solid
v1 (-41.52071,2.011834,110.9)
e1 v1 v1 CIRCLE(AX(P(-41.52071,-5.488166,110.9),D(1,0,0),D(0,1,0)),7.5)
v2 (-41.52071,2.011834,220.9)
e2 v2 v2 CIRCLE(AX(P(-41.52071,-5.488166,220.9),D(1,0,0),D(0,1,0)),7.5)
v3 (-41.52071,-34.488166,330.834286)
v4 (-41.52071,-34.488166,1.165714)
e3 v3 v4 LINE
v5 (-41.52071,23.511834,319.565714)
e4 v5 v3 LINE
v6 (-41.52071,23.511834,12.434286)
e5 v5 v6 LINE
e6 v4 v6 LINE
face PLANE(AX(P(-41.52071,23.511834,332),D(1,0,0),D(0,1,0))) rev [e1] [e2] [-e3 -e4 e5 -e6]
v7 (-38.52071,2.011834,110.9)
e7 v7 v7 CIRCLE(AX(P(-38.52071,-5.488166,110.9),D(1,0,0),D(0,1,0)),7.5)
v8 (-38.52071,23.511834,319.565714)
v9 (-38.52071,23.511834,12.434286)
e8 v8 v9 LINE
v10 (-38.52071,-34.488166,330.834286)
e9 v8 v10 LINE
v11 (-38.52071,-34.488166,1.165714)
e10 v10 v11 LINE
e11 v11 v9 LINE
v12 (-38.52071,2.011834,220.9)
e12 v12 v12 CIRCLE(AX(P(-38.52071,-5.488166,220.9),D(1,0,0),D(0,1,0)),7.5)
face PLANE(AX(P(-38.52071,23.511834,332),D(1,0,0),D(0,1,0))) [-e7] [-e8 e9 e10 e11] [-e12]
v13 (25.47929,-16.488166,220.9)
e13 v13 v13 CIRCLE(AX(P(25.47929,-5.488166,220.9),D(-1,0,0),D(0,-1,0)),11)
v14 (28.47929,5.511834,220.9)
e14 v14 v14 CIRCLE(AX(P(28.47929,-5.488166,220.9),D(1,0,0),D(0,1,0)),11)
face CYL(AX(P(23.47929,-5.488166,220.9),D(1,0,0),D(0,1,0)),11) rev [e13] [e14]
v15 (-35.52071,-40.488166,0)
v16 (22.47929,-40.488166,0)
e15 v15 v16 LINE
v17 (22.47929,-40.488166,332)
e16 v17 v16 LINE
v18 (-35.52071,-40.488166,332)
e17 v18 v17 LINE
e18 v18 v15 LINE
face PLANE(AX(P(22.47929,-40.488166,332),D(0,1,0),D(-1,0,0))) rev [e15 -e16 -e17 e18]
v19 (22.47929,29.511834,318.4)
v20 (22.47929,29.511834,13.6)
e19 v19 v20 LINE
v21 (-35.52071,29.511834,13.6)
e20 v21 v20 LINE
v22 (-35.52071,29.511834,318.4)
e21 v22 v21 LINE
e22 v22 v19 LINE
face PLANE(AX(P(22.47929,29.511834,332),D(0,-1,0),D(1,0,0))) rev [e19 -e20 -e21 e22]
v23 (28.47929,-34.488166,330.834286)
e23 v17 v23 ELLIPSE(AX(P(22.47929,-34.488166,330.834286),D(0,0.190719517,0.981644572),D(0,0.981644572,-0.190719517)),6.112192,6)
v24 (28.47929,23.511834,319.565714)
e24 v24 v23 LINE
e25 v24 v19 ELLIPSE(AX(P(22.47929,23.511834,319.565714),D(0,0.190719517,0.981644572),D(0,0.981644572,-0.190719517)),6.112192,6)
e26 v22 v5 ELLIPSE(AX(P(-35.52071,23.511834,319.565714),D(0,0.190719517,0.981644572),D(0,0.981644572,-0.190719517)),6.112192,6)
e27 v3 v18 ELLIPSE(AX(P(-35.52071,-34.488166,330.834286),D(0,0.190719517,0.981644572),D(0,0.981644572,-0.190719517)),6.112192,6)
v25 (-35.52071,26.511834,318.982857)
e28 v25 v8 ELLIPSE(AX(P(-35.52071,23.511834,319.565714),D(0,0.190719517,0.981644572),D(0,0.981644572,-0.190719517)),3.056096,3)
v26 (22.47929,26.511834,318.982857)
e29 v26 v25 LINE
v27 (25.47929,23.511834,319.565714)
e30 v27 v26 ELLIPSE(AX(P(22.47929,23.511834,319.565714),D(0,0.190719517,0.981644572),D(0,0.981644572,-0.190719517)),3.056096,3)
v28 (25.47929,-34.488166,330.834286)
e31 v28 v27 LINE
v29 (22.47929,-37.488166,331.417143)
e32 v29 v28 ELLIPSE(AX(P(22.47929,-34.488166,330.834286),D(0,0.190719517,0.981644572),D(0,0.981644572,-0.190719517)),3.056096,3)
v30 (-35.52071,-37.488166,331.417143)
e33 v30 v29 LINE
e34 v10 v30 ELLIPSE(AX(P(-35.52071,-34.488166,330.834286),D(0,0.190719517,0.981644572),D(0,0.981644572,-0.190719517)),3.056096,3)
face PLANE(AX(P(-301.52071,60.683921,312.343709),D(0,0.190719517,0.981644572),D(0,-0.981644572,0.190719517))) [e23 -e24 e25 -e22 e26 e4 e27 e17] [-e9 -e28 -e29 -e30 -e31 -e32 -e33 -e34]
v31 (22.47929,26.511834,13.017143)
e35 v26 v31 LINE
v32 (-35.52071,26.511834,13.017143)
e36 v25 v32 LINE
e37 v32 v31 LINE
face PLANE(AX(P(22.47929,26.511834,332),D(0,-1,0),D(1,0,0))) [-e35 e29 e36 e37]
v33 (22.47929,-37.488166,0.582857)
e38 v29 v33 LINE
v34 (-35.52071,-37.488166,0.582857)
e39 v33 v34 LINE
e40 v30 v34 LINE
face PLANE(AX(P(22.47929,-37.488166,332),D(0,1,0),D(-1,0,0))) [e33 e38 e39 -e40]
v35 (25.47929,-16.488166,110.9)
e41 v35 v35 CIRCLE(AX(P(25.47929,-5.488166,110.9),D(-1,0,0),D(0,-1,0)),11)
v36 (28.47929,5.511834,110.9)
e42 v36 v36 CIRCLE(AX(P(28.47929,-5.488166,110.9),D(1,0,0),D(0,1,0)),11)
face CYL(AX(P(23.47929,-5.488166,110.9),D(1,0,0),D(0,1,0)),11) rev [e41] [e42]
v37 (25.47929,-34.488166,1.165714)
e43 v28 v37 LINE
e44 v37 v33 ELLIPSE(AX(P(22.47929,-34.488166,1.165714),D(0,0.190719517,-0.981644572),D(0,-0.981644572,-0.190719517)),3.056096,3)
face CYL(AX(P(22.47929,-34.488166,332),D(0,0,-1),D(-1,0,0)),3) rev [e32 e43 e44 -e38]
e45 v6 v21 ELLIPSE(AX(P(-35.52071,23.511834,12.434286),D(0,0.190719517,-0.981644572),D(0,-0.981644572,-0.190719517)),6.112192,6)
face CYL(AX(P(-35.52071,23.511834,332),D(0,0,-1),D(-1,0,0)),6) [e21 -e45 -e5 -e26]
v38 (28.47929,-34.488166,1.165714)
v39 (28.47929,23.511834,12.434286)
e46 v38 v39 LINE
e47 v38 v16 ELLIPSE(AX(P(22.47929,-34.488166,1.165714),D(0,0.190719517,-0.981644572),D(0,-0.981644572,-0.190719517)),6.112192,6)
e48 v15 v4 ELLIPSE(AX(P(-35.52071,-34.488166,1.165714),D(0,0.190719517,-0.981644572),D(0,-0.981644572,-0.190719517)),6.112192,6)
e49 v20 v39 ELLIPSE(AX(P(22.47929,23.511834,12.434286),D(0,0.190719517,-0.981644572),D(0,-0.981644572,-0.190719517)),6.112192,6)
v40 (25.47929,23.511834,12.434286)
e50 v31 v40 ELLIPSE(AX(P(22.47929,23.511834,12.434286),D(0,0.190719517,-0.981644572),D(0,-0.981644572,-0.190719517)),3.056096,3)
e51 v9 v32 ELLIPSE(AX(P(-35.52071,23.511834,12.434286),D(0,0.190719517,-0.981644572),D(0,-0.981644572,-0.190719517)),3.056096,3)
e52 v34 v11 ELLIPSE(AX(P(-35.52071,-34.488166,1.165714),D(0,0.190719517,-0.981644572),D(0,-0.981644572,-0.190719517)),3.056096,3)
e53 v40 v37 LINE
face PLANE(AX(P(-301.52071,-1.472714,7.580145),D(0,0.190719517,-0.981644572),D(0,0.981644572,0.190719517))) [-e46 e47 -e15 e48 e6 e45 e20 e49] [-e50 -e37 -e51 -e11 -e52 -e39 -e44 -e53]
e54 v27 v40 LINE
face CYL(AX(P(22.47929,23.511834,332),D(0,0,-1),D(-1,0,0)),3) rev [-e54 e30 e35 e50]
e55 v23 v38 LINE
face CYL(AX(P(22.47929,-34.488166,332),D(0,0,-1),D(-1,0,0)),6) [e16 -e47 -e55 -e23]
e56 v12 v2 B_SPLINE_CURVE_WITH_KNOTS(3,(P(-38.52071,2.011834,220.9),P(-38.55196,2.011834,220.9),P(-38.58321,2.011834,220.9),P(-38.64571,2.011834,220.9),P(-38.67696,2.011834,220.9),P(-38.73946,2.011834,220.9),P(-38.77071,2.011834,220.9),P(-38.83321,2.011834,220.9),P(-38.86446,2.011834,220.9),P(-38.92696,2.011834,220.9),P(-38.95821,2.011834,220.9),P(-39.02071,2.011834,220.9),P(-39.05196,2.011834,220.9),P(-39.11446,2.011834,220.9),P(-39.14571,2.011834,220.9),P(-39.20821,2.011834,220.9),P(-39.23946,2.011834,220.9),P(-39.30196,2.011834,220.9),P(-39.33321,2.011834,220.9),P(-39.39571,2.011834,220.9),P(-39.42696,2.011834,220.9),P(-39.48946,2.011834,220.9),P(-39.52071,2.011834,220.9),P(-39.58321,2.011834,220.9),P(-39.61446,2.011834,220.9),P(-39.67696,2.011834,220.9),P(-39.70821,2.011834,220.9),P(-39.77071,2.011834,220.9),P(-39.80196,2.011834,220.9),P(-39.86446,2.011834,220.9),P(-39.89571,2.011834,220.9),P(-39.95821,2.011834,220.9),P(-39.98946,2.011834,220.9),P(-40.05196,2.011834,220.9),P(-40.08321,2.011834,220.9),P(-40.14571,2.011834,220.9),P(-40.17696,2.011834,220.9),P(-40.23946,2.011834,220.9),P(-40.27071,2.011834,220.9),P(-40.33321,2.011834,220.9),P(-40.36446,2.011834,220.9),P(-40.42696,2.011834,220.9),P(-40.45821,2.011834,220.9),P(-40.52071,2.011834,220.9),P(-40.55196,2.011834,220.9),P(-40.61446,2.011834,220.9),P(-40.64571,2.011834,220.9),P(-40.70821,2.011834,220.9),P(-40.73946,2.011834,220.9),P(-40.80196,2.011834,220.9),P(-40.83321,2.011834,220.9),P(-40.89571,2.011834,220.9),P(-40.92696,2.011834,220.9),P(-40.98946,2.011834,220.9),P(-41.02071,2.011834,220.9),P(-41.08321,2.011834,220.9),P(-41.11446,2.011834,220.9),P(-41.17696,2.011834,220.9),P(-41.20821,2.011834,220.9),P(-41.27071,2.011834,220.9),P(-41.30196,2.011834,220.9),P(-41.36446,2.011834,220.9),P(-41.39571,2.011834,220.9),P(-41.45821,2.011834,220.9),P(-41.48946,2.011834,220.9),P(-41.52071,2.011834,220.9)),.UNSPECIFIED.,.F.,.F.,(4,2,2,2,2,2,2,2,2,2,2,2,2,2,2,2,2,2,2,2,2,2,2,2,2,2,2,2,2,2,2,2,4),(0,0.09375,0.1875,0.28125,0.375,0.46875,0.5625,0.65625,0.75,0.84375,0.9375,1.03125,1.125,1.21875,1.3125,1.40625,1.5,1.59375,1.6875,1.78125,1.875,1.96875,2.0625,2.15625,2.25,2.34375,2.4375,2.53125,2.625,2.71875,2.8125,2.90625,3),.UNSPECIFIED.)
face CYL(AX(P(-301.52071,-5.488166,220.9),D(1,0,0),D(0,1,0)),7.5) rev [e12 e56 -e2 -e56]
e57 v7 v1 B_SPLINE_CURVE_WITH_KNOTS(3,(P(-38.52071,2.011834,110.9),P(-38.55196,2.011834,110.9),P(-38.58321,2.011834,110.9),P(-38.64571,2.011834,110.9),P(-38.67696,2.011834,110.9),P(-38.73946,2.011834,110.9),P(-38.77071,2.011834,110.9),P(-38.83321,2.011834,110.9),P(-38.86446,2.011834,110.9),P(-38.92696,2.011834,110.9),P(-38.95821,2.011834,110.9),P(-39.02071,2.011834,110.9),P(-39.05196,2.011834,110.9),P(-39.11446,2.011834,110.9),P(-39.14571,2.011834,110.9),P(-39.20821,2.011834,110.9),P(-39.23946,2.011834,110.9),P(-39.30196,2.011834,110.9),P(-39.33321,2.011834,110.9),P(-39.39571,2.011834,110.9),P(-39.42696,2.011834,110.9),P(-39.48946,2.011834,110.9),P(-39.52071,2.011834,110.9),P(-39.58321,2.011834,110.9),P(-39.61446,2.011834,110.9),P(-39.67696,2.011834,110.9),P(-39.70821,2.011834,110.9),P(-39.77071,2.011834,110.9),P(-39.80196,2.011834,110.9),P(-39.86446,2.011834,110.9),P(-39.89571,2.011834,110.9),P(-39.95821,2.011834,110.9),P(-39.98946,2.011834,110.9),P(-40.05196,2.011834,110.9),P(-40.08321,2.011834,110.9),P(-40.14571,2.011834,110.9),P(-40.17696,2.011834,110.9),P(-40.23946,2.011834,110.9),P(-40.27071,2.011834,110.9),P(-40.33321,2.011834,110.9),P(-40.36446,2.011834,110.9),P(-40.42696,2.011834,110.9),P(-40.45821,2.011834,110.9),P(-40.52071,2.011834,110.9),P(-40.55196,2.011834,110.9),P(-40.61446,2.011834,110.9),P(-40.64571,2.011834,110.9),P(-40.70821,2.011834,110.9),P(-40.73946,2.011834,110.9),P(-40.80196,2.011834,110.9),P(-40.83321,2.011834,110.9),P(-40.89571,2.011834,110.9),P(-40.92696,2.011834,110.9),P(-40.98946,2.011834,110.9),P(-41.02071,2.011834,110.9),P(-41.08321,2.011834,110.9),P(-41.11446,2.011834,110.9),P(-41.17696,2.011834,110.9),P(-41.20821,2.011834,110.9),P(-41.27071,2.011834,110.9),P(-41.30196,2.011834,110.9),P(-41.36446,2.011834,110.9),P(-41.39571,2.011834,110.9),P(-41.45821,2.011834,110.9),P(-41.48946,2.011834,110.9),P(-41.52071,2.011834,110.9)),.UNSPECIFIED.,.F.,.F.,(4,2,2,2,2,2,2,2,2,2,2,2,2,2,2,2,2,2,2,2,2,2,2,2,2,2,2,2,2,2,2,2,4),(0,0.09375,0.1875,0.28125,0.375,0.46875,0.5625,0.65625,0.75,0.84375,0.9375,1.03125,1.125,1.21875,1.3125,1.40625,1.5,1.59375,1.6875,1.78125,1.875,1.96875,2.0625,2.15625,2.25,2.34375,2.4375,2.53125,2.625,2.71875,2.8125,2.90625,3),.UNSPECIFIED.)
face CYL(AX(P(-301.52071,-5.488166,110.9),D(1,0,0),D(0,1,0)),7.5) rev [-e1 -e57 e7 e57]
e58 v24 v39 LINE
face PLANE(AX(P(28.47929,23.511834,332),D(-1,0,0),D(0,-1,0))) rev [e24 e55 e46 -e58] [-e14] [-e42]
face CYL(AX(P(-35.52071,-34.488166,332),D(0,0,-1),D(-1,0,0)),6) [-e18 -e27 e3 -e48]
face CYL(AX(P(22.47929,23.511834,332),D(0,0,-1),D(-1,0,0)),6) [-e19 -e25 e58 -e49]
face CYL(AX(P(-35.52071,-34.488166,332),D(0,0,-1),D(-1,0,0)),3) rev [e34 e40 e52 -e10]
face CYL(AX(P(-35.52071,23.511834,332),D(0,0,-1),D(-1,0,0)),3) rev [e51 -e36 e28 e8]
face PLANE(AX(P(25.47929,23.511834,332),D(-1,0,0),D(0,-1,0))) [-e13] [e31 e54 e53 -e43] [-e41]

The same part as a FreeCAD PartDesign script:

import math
import FreeCAD as App
import Part
import Sketcher

V = App.Vector
Q = App.Units.Quantity

doc = App.newDocument("Part")
body = doc.addObject("PartDesign::Body", "Body")

# Sketch on XY plane
sketch1 = body.newObject("Sketcher::SketchObject", "Sketch")
sketch1.AttachmentSupport = (doc.getObject("XY_Plane"), [""])
sketch1.MapMode = "FlatFace"
sketch1.addGeometry(Part.LineSegment(V(22.47929, 29.511834, 0), V(-35.52071, 29.511834, 0)), False)
sketch1.addGeometry(Part.ArcOfCircle(Part.Circle(V(-35.52071, 23.511834, 0), V(0, 0, 1), 6), math.radians(90), math.radians(180)), False)
sketch1.addGeometry(Part.LineSegment(V(-41.52071, 23.511834, 0), V(-41.52071, -34.488166, 0)), False)
sketch1.addGeometry(Part.ArcOfCircle(Part.Circle(V(-35.52071, -34.488166, 0), V(0, 0, 1), 6), math.radians(180), math.radians(270)), False)
sketch1.addGeometry(Part.LineSegment(V(-35.52071, -40.488166, 0), V(22.47929, -40.488166, 0)), False)
sketch1.addGeometry(Part.ArcOfCircle(Part.Circle(V(22.47929, -34.488166, 0), V(0, 0, 1), 6), math.radians(-90), math.radians(0)), False)
sketch1.addGeometry(Part.LineSegment(V(28.47929, -34.488166, 0), V(28.47929, 23.511834, 0)), False)
sketch1.addGeometry(Part.ArcOfCircle(Part.Circle(V(22.47929, 23.511834, 0), V(0, 0, 1), 6), math.radians(0), math.radians(90)), False)
sketch1.addGeometry(Part.LineSegment(V(-35.52071, 26.511834, 0), V(22.47929, 26.511834, 0)), False)
sketch1.addGeometry(Part.ArcOfCircle(Part.Circle(V(22.47929, 23.511834, 0), V(0, 0, 1), 3), math.radians(0), math.radians(90)), False)
sketch1.addGeometry(Part.LineSegment(V(25.47929, 23.511834, 0), V(25.47929, -34.488166, 0)), False)
sketch1.addGeometry(Part.ArcOfCircle(Part.Circle(V(22.47929, -34.488166, 0), V(0, 0, 1), 3), math.radians(-90), math.radians(0)), False)
sketch1.addGeometry(Part.LineSegment(V(22.47929, -37.488166, 0), V(-35.52071, -37.488166, 0)), False)
sketch1.addGeometry(Part.ArcOfCircle(Part.Circle(V(-35.52071, -34.488166, 0), V(0, 0, 1), 3), math.radians(180), math.radians(270)), False)
sketch1.addGeometry(Part.LineSegment(V(-38.52071, -34.488166, 0), V(-38.52071, 23.511834, 0)), False)
sketch1.addGeometry(Part.ArcOfCircle(Part.Circle(V(-35.52071, 23.511834, 0), V(0, 0, 1), 3), math.radians(90), math.radians(180)), False)
sketch1.addConstraint(Sketcher.Constraint("Tangent", 0, 2, 1, 1))
sketch1.addConstraint(Sketcher.Constraint("Tangent", 1, 2, 2, 1))
sketch1.addConstraint(Sketcher.Constraint("Tangent", 2, 2, 3, 1))
sketch1.addConstraint(Sketcher.Constraint("Tangent", 3, 2, 4, 1))
sketch1.addConstraint(Sketcher.Constraint("Tangent", 4, 2, 5, 1))
sketch1.addConstraint(Sketcher.Constraint("Tangent", 5, 2, 6, 1))
sketch1.addConstraint(Sketcher.Constraint("Tangent", 6, 2, 7, 1))
sketch1.addConstraint(Sketcher.Constraint("Tangent", 7, 2, 0, 1))
sketch1.addConstraint(Sketcher.Constraint("Tangent", 8, 2, 9, 2))
sketch1.addConstraint(Sketcher.Constraint("Tangent", 9, 1, 10, 1))
sketch1.addConstraint(Sketcher.Constraint("Tangent", 10, 2, 11, 2))
sketch1.addConstraint(Sketcher.Constraint("Tangent", 11, 1, 12, 1))
sketch1.addConstraint(Sketcher.Constraint("Tangent", 12, 2, 13, 2))
sketch1.addConstraint(Sketcher.Constraint("Tangent", 13, 1, 14, 1))
sketch1.addConstraint(Sketcher.Constraint("Tangent", 14, 2, 15, 2))
sketch1.addConstraint(Sketcher.Constraint("Tangent", 15, 1, 8, 1))
sketch1.addConstraint(Sketcher.Constraint("Horizontal", 0))
sketch1.addConstraint(Sketcher.Constraint("Vertical", 2))
sketch1.addConstraint(Sketcher.Constraint("Horizontal", 4))
sketch1.addConstraint(Sketcher.Constraint("Vertical", 6))
sketch1.addConstraint(Sketcher.Constraint("Horizontal", 8))
sketch1.addConstraint(Sketcher.Constraint("Vertical", 10))
sketch1.addConstraint(Sketcher.Constraint("Horizontal", 12))
sketch1.addConstraint(Sketcher.Constraint("Vertical", 14))
sketch1.addConstraint(Sketcher.Constraint("Coincident", 9, 3, 7, 3))
sketch1.addConstraint(Sketcher.Constraint("Coincident", 11, 3, 5, 3))
sketch1.addConstraint(Sketcher.Constraint("Coincident", 13, 3, 3, 3))
sketch1.addConstraint(Sketcher.Constraint("Equal", 1, 3))
sketch1.addConstraint(Sketcher.Constraint("Equal", 3, 5))
sketch1.addConstraint(Sketcher.Constraint("Equal", 5, 7))
sketch1.addConstraint(Sketcher.Constraint("Equal", 13, 15))
sketch1.addConstraint(Sketcher.Constraint("Equal", 12, 2))
sketch1.addConstraint(Sketcher.Constraint("Radius", 1, Q("6 mm")))
sketch1.addConstraint(Sketcher.Constraint("Radius", 9, Q("3 mm")))
sketch1.addConstraint(Sketcher.Constraint("DistanceX", 0, 2, 0, 1, Q("58 mm")))
sketch1.addConstraint(Sketcher.Constraint("DistanceX", 1, 3, -1, 1, Q("35.52071 mm")))
sketch1.addConstraint(Sketcher.Constraint("DistanceY", -1, 1, 1, 3, Q("23.511834 mm")))
pad1 = body.newObject("PartDesign::Pad", "Pad")
pad1.Profile = sketch1
pad1.Length = 332

# Sketch on YZ plane
sketch2 = body.newObject("Sketcher::SketchObject", "Sketch001")
sketch2.AttachmentSupport = (doc.getObject("YZ_Plane"), [""])
sketch2.MapMode = "FlatFace"
sketch2.AttachmentOffset = App.Placement(V(0, 0, 28.47929), App.Rotation())
sketch2.addGeometry(Part.Circle(V(-5.488166, 220.9, 0), V(0, 0, 1), 7.5), False)
sketch2.addGeometry(Part.Circle(V(-5.488166, 110.9, 0), V(0, 0, 1), 7.5), False)
sketch2.addGeometry(Part.LineSegment(V(29.511834, 13.6, 0), V(-40.488166, 0, 0)), False)
sketch2.addGeometry(Part.LineSegment(V(-40.488166, 0, 0), V(29.511834, 0, 0)), False)
sketch2.addGeometry(Part.LineSegment(V(29.511834, 0, 0), V(29.511834, 13.6, 0)), False)
sketch2.addGeometry(Part.LineSegment(V(29.511834, 332, 0), V(-40.488166, 332, 0)), False)
sketch2.addGeometry(Part.LineSegment(V(-40.488166, 332, 0), V(29.511834, 318.4, 0)), False)
sketch2.addGeometry(Part.LineSegment(V(29.511834, 318.4, 0), V(29.511834, 332, 0)), False)
sketch2.addConstraint(Sketcher.Constraint("Coincident", 2, 2, 3, 1))
sketch2.addConstraint(Sketcher.Constraint("Coincident", 3, 2, 4, 1))
sketch2.addConstraint(Sketcher.Constraint("Coincident", 4, 2, 2, 1))
sketch2.addConstraint(Sketcher.Constraint("Coincident", 5, 2, 6, 1))
sketch2.addConstraint(Sketcher.Constraint("Coincident", 6, 2, 7, 1))
sketch2.addConstraint(Sketcher.Constraint("Coincident", 7, 2, 5, 1))
sketch2.addConstraint(Sketcher.Constraint("Horizontal", 3))
sketch2.addConstraint(Sketcher.Constraint("Vertical", 4))
sketch2.addConstraint(Sketcher.Constraint("Horizontal", 5))
sketch2.addConstraint(Sketcher.Constraint("Vertical", 7))
sketch2.addConstraint(Sketcher.Constraint("Equal", 0, 1))
sketch2.addConstraint(Sketcher.Constraint("PointOnObject", 2, 2, -1))
sketch2.addConstraint(Sketcher.Constraint("Vertical", 0, 3, 1, 3))
sketch2.addConstraint(Sketcher.Constraint("Vertical", 2, 2, 5, 2))
sketch2.addConstraint(Sketcher.Constraint("Vertical", 4, 2, 6, 2))
sketch2.addConstraint(Sketcher.Constraint("Equal", 4, 7))
sketch2.addConstraint(Sketcher.Constraint("Diameter", 0, Q("15 mm")))
sketch2.addConstraint(Sketcher.Constraint("DistanceX", 3, 1, 3, 2, Q("70 mm")))
sketch2.addConstraint(Sketcher.Constraint("DistanceY", 4, 1, 4, 2, Q("13.6 mm")))
sketch2.addConstraint(Sketcher.Constraint("DistanceY", -1, 1, 5, 2, Q("332 mm")))
sketch2.addConstraint(Sketcher.Constraint("DistanceY", 1, 3, 0, 3, Q("110 mm")))
sketch2.addConstraint(Sketcher.Constraint("DistanceX", 2, 2, 1, 3, Q("35 mm")))
sketch2.addConstraint(Sketcher.Constraint("DistanceY", -1, 1, 0, 3, Q("220.9 mm")))
sketch2.addConstraint(Sketcher.Constraint("DistanceX", 0, 3, -1, 1, Q("5.488166 mm")))
pocket1 = body.newObject("PartDesign::Pocket", "Pocket")
pocket1.Profile = sketch2
pocket1.Length = 330

# Sketch on YZ plane
sketch3 = body.newObject("Sketcher::SketchObject", "Sketch002")
sketch3.AttachmentSupport = (doc.getObject("YZ_Plane"), [""])
sketch3.MapMode = "FlatFace"
sketch3.AttachmentOffset = App.Placement(V(0, 0, 28.47929), App.Rotation())
sketch3.addGeometry(Part.Circle(V(-5.488166, 220.9, 0), V(0, 0, 1), 11), False)
sketch3.addGeometry(Part.Circle(V(-5.488166, 110.9, 0), V(0, 0, 1), 11), False)
sketch3.addConstraint(Sketcher.Constraint("Equal", 0, 1))
sketch3.addConstraint(Sketcher.Constraint("Vertical", 0, 3, 1, 3))
sketch3.addConstraint(Sketcher.Constraint("Diameter", 0, Q("22 mm")))
sketch3.addConstraint(Sketcher.Constraint("DistanceY", 1, 3, 0, 3, Q("110 mm")))
sketch3.addConstraint(Sketcher.Constraint("DistanceY", -1, 1, 0, 3, Q("220.9 mm")))
sketch3.addConstraint(Sketcher.Constraint("DistanceX", 0, 3, -1, 1, Q("5.488166 mm")))
pocket2 = body.newObject("PartDesign::Pocket", "Pocket001")
pocket2.Profile = sketch3
pocket2.Length = 5

doc.recompute()
